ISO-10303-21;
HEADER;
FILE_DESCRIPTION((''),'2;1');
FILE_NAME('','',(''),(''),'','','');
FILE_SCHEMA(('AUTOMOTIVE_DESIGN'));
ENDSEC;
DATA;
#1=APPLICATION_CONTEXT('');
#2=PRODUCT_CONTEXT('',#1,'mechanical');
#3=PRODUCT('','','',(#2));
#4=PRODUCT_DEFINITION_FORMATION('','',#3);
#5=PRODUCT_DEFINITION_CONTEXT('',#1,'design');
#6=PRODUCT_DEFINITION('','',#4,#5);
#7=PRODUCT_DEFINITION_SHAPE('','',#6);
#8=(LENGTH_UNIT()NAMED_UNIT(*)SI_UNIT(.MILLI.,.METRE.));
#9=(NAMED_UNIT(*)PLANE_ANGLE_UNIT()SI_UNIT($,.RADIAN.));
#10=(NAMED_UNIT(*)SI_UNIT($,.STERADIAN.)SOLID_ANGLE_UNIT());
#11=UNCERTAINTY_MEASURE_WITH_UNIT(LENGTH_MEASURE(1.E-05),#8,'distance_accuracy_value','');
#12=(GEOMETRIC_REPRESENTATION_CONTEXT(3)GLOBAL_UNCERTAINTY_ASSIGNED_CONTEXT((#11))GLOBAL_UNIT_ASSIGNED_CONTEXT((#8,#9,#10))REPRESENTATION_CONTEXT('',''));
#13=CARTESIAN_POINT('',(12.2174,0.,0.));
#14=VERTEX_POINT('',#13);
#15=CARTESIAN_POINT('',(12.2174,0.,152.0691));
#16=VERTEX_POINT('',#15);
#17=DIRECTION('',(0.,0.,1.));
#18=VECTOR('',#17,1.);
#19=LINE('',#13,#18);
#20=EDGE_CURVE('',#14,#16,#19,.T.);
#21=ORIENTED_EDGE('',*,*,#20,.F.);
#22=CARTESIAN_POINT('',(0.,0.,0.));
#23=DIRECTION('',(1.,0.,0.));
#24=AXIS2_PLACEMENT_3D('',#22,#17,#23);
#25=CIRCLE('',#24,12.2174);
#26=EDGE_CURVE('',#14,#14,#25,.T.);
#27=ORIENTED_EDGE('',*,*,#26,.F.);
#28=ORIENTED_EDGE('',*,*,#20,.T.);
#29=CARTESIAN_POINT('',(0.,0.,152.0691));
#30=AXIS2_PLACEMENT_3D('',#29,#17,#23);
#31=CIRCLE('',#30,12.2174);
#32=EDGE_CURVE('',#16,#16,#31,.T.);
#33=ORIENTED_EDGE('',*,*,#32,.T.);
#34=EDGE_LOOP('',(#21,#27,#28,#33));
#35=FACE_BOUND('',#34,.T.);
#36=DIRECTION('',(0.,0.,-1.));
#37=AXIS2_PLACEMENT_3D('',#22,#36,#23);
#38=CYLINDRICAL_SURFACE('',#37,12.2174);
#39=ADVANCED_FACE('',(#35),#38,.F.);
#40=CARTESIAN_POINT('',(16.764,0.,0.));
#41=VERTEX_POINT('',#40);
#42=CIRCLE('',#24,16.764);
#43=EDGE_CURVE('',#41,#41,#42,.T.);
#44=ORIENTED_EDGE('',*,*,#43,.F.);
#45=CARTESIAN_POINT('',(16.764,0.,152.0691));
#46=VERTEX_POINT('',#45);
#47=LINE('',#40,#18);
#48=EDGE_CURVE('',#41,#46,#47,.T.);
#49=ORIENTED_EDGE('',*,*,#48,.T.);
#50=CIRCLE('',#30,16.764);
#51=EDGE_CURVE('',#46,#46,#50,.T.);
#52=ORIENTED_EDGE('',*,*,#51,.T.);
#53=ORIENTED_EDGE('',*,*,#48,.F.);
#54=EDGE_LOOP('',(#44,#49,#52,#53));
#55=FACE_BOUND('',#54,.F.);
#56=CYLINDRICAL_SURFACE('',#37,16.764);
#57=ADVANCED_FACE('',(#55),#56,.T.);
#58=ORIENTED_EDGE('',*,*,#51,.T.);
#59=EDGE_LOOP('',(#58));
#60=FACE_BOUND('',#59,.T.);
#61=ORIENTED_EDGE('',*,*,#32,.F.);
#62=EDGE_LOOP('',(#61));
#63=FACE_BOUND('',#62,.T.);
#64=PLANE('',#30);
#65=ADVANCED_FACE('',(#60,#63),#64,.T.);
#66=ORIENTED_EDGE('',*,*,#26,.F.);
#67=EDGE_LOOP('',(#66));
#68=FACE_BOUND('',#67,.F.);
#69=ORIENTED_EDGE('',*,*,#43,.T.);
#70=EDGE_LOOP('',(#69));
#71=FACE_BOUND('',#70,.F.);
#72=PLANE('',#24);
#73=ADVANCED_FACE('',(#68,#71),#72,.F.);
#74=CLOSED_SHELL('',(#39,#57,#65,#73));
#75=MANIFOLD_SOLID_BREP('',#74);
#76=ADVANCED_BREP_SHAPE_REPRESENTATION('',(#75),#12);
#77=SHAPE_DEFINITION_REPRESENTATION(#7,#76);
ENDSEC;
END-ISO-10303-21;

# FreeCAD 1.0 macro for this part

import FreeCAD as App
import Part
import Sketcher
from FreeCAD import Vector
Q = App.Units.Quantity

doc = App.newDocument("Part")
body = doc.addObject("PartDesign::Body", "Body")

sketch1 = body.newObject("Sketcher::SketchObject", "Sketch")
sketch1.AttachmentSupport = (doc.getObject("XY_Plane"), [""])
sketch1.MapMode = "FlatFace"
sketch1.addGeometry([
    Part.Circle(Vector(0, 0, 0), Vector(0, 0, 1), 16.764),
    Part.Circle(Vector(0, 0, 0), Vector(0, 0, 1), 12.2174),
], False)
sketch1.addConstraint([
    Sketcher.Constraint("Coincident", 0, 3, -1, 1),
    Sketcher.Constraint("Coincident", 1, 3, -1, 1),
    Sketcher.Constraint("Diameter", 0, Q("1.32 in")),
    Sketcher.Constraint("Diameter", 1, Q("0.962 in")),
])
pad1 = body.newObject("PartDesign::Pad", "Pad")
pad1.Profile = sketch1
pad1.Length = 152.0691

doc.recompute()
